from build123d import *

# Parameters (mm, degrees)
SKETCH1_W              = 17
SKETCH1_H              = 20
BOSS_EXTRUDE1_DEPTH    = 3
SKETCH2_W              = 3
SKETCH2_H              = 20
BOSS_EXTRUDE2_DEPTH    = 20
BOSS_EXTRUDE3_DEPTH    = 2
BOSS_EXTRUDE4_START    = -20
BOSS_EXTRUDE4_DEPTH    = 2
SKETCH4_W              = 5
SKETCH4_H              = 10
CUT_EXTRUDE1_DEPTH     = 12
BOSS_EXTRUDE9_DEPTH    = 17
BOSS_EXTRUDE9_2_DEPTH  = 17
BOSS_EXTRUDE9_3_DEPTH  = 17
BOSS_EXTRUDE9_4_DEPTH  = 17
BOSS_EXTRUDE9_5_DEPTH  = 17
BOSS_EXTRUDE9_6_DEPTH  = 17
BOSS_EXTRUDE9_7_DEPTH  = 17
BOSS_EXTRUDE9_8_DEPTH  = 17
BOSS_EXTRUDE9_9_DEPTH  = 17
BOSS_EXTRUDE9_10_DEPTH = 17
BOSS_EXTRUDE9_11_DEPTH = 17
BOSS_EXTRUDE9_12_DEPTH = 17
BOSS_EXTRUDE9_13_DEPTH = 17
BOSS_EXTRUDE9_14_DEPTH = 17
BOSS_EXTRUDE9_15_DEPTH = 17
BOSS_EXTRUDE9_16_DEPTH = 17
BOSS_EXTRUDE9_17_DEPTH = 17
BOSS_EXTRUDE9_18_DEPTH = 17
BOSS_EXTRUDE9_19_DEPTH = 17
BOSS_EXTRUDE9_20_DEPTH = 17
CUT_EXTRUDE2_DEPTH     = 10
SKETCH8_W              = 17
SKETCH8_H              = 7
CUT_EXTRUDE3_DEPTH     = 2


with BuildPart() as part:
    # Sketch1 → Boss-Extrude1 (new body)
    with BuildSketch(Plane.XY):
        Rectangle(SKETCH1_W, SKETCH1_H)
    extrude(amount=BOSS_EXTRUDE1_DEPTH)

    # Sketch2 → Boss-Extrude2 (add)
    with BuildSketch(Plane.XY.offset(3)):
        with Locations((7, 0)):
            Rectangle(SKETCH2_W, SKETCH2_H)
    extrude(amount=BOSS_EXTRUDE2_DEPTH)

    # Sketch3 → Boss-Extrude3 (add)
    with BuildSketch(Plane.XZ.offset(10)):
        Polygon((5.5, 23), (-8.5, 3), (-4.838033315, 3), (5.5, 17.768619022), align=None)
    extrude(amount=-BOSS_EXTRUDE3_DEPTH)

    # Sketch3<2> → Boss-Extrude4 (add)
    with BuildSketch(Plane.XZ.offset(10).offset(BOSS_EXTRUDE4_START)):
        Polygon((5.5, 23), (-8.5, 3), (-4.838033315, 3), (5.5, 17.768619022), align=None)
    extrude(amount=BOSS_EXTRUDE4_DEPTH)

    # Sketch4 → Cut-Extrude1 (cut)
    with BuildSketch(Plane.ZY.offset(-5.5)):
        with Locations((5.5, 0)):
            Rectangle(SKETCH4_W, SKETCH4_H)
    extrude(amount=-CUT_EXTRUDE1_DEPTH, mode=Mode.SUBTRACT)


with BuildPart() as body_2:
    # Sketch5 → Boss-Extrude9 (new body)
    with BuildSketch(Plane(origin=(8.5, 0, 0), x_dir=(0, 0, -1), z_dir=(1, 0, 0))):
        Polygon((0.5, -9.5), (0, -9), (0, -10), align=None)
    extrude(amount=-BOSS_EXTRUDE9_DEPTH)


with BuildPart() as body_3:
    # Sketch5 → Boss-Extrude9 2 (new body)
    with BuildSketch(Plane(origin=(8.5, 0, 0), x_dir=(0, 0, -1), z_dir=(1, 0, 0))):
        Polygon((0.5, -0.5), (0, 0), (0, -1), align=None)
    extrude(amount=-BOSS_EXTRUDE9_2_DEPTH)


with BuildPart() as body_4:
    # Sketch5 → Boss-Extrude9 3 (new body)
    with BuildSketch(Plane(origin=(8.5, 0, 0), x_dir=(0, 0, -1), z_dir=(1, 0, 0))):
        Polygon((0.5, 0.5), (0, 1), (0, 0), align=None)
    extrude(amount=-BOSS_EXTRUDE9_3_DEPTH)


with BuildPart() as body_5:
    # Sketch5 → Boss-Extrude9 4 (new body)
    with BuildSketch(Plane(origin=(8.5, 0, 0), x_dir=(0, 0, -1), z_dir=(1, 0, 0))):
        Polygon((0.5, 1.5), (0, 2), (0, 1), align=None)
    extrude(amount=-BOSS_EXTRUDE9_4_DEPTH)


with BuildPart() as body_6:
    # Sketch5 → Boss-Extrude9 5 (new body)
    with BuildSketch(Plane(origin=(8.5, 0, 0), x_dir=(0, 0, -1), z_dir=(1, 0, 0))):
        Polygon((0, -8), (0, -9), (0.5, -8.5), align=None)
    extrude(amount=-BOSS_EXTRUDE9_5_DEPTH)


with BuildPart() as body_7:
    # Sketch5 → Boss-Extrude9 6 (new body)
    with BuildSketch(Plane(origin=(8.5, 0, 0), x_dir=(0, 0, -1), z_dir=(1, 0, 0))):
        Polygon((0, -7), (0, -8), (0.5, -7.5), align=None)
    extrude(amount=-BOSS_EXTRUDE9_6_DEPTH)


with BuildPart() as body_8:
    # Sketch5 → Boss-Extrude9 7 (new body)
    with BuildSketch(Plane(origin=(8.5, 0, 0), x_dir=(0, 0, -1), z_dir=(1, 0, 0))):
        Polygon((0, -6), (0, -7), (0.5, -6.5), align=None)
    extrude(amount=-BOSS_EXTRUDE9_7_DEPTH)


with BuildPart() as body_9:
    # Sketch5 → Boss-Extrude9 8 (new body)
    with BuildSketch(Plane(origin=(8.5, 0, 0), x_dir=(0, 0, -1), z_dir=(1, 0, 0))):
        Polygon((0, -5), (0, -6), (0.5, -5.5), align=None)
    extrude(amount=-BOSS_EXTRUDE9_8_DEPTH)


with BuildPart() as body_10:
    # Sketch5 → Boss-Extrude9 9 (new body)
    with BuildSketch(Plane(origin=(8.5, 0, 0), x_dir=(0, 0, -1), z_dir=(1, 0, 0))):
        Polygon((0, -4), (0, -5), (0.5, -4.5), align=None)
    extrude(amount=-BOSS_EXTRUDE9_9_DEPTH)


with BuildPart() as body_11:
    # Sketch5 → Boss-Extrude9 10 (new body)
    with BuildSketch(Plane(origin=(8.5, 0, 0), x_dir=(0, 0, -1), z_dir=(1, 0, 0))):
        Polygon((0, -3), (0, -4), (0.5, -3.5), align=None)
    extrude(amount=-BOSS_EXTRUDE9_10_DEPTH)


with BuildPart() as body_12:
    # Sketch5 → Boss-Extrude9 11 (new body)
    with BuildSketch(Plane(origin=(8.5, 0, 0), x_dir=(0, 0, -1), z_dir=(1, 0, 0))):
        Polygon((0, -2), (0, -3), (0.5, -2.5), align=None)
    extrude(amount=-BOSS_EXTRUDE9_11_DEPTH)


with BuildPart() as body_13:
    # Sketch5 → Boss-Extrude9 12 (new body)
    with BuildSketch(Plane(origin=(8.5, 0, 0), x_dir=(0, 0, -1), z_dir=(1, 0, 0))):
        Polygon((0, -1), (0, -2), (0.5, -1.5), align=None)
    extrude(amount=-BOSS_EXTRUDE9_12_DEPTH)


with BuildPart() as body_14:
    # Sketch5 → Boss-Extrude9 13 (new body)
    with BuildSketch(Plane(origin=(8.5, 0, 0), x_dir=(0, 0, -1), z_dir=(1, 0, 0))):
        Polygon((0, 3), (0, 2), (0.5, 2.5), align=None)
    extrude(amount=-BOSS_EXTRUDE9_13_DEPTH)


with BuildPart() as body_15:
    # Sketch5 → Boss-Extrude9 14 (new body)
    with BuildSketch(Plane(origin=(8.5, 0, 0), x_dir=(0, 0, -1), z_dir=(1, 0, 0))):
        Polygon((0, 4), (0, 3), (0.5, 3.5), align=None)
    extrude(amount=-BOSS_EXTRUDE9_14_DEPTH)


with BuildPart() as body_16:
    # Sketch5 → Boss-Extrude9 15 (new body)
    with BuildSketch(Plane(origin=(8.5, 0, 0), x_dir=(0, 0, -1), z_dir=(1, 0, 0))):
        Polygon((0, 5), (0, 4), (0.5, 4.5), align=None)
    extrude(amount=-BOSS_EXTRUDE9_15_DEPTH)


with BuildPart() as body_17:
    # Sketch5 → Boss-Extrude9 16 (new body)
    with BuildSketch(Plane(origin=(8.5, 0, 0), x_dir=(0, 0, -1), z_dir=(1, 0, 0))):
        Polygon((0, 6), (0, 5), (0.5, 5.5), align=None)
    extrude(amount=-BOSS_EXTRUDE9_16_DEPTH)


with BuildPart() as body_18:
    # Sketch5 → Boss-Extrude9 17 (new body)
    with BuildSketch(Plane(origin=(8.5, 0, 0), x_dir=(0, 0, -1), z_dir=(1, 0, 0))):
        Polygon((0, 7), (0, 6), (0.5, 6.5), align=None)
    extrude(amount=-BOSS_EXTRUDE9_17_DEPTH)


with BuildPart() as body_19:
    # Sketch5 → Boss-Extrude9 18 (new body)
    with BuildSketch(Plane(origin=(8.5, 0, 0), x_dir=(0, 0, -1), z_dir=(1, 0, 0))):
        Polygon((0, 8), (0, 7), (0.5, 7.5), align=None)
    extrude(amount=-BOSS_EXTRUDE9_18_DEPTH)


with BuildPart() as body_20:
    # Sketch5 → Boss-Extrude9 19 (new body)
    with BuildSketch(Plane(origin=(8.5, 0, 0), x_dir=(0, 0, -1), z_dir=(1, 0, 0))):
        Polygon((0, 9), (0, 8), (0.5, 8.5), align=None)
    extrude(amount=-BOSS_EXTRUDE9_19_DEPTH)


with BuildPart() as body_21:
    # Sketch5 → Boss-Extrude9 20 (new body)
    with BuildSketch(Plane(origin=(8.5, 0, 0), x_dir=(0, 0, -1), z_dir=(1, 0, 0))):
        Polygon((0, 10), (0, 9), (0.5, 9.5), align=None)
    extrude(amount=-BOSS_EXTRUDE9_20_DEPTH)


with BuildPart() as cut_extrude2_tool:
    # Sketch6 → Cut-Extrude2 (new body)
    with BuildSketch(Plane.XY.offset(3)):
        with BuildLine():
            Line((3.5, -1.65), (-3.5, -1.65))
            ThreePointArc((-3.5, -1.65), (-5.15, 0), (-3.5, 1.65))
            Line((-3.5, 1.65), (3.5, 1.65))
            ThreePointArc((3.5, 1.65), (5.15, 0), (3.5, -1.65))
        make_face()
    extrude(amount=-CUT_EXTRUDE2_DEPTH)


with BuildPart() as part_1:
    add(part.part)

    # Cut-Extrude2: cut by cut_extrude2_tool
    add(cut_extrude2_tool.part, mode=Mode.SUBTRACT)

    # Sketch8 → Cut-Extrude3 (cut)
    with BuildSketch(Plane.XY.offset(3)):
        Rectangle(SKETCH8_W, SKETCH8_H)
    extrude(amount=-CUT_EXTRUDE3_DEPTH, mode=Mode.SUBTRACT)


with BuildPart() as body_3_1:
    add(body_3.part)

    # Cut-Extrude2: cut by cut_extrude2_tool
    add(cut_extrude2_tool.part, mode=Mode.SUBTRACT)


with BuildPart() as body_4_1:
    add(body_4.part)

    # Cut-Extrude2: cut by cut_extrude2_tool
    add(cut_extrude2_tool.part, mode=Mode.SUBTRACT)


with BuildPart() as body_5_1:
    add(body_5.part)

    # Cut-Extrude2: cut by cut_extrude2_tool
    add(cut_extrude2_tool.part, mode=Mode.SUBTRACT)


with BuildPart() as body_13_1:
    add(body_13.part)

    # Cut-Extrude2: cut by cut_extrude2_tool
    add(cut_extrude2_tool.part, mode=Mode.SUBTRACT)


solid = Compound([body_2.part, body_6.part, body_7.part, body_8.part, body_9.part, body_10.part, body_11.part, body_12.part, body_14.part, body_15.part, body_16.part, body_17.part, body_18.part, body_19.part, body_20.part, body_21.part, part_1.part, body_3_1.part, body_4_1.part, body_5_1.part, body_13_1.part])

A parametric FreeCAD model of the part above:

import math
import FreeCAD as App
import Part
import Sketcher
from FreeCAD import Vector
Q = App.Units.Quantity

doc = App.newDocument("Part")
body = doc.addObject("PartDesign::Body", "Body")

# Sketch on XY plane
sketch1 = doc.addObject("Sketcher::SketchObject", "Sketch")
body.addObject(sketch1)
sketch1.AttachmentSupport = (doc.XY_Plane, [""])
sketch1.MapMode = "FlatFace"
sketch1.addGeometry([
    Part.LineSegment(Vector(-8, 10, 0), Vector(-8, -10, 0)),
    Part.LineSegment(Vector(-8, -10, 0), Vector(8, -10, 0)),
    Part.LineSegment(Vector(8, -10, 0), Vector(8, 10, 0)),
    Part.LineSegment(Vector(8, 10, 0), Vector(-8, 10, 0)),
], False)
sketch1.addConstraint([
    Sketcher.Constraint("Coincident", 0, 2, 1, 1),
    Sketcher.Constraint("Coincident", 1, 2, 2, 1),
    Sketcher.Constraint("Coincident", 2, 2, 3, 1),
    Sketcher.Constraint("Coincident", 3, 2, 0, 1),
    Sketcher.Constraint("Vertical", 0),
    Sketcher.Constraint("Horizontal", 1),
    Sketcher.Constraint("Vertical", 2),
    Sketcher.Constraint("Horizontal", 3),
    Sketcher.Constraint("Symmetric", 0, 2, 2, 2, -1, 1),
    Sketcher.Constraint("DistanceX", 1, 1, 1, 2, Q("17 mm")),
    Sketcher.Constraint("DistanceY", 0, 2, 0, 1, Q("20 mm")),
])
pad1 = doc.addObject("PartDesign::Pad", "Pad")
body.addObject(pad1)
pad1.Profile = sketch1
pad1.Length = 3

# Sketch on XY plane
sketch2 = doc.addObject("Sketcher::SketchObject", "Sketch001")
body.addObject(sketch2)
sketch2.AttachmentSupport = (doc.XY_Plane, [""])
sketch2.MapMode = "FlatFace"
sketch2.AttachmentOffset = App.Placement(Vector(0, 0, 3), App.Rotation())
sketch2.addGeometry([
    Part.LineSegment(Vector(5.5, 10, 0), Vector(5.5, -10, 0)),
    Part.LineSegment(Vector(5.5, -10, 0), Vector(8.5, -10, 0)),
    Part.LineSegment(Vector(8.5, -10, 0), Vector(8.5, 10, 0)),
    Part.LineSegment(Vector(8.5, 10, 0), Vector(5.5, 10, 0)),
], False)
sketch2.addConstraint([
    Sketcher.Constraint("Coincident", 0, 2, 1, 1),
    Sketcher.Constraint("Coincident", 1, 2, 2, 1),
    Sketcher.Constraint("Coincident", 2, 2, 3, 1),
    Sketcher.Constraint("Coincident", 3, 2, 0, 1),
    Sketcher.Constraint("Vertical", 0),
    Sketcher.Constraint("Horizontal", 1),
    Sketcher.Constraint("Vertical", 2),
    Sketcher.Constraint("Horizontal", 3),
    Sketcher.Constraint("DistanceX", 1, 1, 1, 2, Q("3 mm")),
    Sketcher.Constraint("DistanceY", 0, 2, 0, 1, Q("20 mm")),
    Sketcher.Constraint("DistanceY", 0, 2, -1, 1, Q("10 mm")),
    Sketcher.Constraint("DistanceX", -1, 1, 0, 2, Q("5.5 mm")),
])
pad2 = doc.addObject("PartDesign::Pad", "Pad001")
body.addObject(pad2)
pad2.Profile = sketch2
pad2.Length = 20

# Sketch on XZ plane
sketch3 = doc.addObject("Sketcher::SketchObject", "Sketch002")
body.addObject(sketch3)
sketch3.AttachmentSupport = (doc.XZ_Plane, [""])
sketch3.MapMode = "FlatFace"
sketch3.AttachmentOffset = App.Placement(Vector(0, 0, 10), App.Rotation())
sketch3.addGeometry([
    Part.LineSegment(Vector(5.5, 23, 0), Vector(-8.5, 3, 0)),
    Part.LineSegment(Vector(-8.5, 3, 0), Vector(-4.8, 3, 0)),
    Part.LineSegment(Vector(-4.8, 3, 0), Vector(5.5, 17.8, 0)),
    Part.LineSegment(Vector(5.5, 17.8, 0), Vector(5.5, 23, 0)),
], False)
sketch3.addConstraint([
    Sketcher.Constraint("Coincident", 0, 2, 1, 1),
    Sketcher.Constraint("Coincident", 1, 2, 2, 1),
    Sketcher.Constraint("Coincident", 2, 2, 3, 1),
    Sketcher.Constraint("Coincident", 3, 2, 0, 1),
    Sketcher.Constraint("Horizontal", 1),
    Sketcher.Constraint("Vertical", 3),
    Sketcher.Constraint("Parallel", 0, 2),
    Sketcher.Constraint("DistanceY", -1, 1, 0, 2, Q("3 mm")),
    Sketcher.Constraint("DistanceY", -1, 1, 3, 2, Q("23 mm")),
    Sketcher.Constraint("DistanceX", 0, 2, 2, 2, Q("14 mm")),
    Sketcher.Constraint("DistanceX", 0, 2, -1, 1, Q("8.5 mm")),
    Sketcher.Constraint("DistanceY", 3, 1, 3, 2, Q("5.231381 mm")),
])
pad3 = doc.addObject("PartDesign::Pad", "Pad002")
body.addObject(pad3)
pad3.Profile = sketch3
pad3.Length = 2
pad3.Reversed = True

# Sketch on XZ plane
sketch4 = doc.addObject("Sketcher::SketchObject", "Sketch003")
body.addObject(sketch4)
sketch4.AttachmentSupport = (doc.XZ_Plane, [""])
sketch4.MapMode = "FlatFace"
sketch4.AttachmentOffset = App.Placement(Vector(0, 0, -10), App.Rotation())
sketch4.addGeometry([
    Part.LineSegment(Vector(5.5, 23, 0), Vector(-8.5, 3, 0)),
    Part.LineSegment(Vector(-8.5, 3, 0), Vector(-4.8, 3, 0)),
    Part.LineSegment(Vector(-4.8, 3, 0), Vector(5.5, 17.8, 0)),
    Part.LineSegment(Vector(5.5, 17.8, 0), Vector(5.5, 23, 0)),
], False)
sketch4.addConstraint([
    Sketcher.Constraint("Coincident", 0, 2, 1, 1),
    Sketcher.Constraint("Coincident", 1, 2, 2, 1),
    Sketcher.Constraint("Coincident", 2, 2, 3, 1),
    Sketcher.Constraint("Coincident", 3, 2, 0, 1),
    Sketcher.Constraint("Horizontal", 1),
    Sketcher.Constraint("Vertical", 3),
    Sketcher.Constraint("Parallel", 0, 2),
    Sketcher.Constraint("DistanceY", -1, 1, 0, 2, Q("3 mm")),
    Sketcher.Constraint("DistanceY", -1, 1, 3, 2, Q("23 mm")),
    Sketcher.Constraint("DistanceX", 0, 2, 2, 2, Q("14 mm")),
    Sketcher.Constraint("DistanceX", 0, 2, -1, 1, Q("8.5 mm")),
    Sketcher.Constraint("DistanceY", 3, 1, 3, 2, Q("5.231381 mm")),
])
pad4 = doc.addObject("PartDesign::Pad", "Pad003")
body.addObject(pad4)
pad4.Profile = sketch4
pad4.Length = 2

# Sketch on YZ plane
sketch5 = doc.addObject("Sketcher::SketchObject", "Sketch004")
body.addObject(sketch5)
sketch5.AttachmentSupport = (doc.YZ_Plane, [""])
sketch5.MapMode = "FlatFace"
sketch5.AttachmentOffset = App.Placement(Vector(0, 0, 5.5), App.Rotation())
sketch5.addGeometry([
    Part.LineSegment(Vector(5, 3, 0), Vector(-5, 3, 0)),
    Part.LineSegment(Vector(-5, 3, 0), Vector(-5, 8, 0)),
    Part.LineSegment(Vector(-5, 8, 0), Vector(5, 8, 0)),
    Part.LineSegment(Vector(5, 8, 0), Vector(5, 3, 0)),
], False)
sketch5.addConstraint([
    Sketcher.Constraint("Coincident", 0, 2, 1, 1),
    Sketcher.Constraint("Coincident", 1, 2, 2, 1),
    Sketcher.Constraint("Coincident", 2, 2, 3, 1),
    Sketcher.Constraint("Coincident", 3, 2, 0, 1),
    Sketcher.Constraint("Horizontal", 0),
    Sketcher.Constraint("Vertical", 1),
    Sketcher.Constraint("Horizontal", 2),
    Sketcher.Constraint("Vertical", 3),
    Sketcher.Constraint("DistanceX", 0, 2, 0, 1, Q("10 mm")),
    Sketcher.Constraint("DistanceY", 1, 1, 1, 2, Q("5 mm")),
    Sketcher.Constraint("DistanceX", 0, 2, -1, 1, Q("5 mm")),
    Sketcher.Constraint("DistanceY", -1, 1, 0, 2, Q("3 mm")),
])
pocket1 = doc.addObject("PartDesign::Pocket", "Pocket")
body.addObject(pocket1)
pocket1.Profile = sketch5
pocket1.Length = 12
pocket1.Reversed = True
body2 = doc.addObject("PartDesign::Body", "Body001")

# Sketch on YZ plane
sketch6 = doc.addObject("Sketcher::SketchObject", "Sketch005")
body2.addObject(sketch6)
sketch6.AttachmentSupport = (doc.getObject("YZ_Plane001"), [""])
sketch6.MapMode = "FlatFace"
sketch6.AttachmentOffset = App.Placement(Vector(0, 0, 8.5), App.Rotation())
sketch6.addGeometry([
    Part.LineSegment(Vector(-9.5, -0.5, 0), Vector(-9, 0, 0)),
    Part.LineSegment(Vector(-9, 0, 0), Vector(-10, 0, 0)),
    Part.LineSegment(Vector(-10, 0, 0), Vector(-9.5, -0.5, 0)),
], False)
sketch6.addConstraint([
    Sketcher.Constraint("Coincident", 0, 2, 1, 1),
    Sketcher.Constraint("Coincident", 1, 2, 2, 1),
    Sketcher.Constraint("Coincident", 2, 2, 0, 1),
    Sketcher.Constraint("Horizontal", 1),
    Sketcher.Constraint("PointOnObject", 0, 2, -1),
    Sketcher.Constraint("Perpendicular", 0, 2),
    Sketcher.Constraint("Equal", 0, 2),
    Sketcher.Constraint("DistanceX", 1, 2, 1, 1, Q("1 mm")),
    Sketcher.Constraint("DistanceX", 0, 2, -1, 1, Q("9 mm")),
])
pad5 = doc.addObject("PartDesign::Pad", "Pad004")
body2.addObject(pad5)
pad5.Profile = sketch6
pad5.Length = 17
pad5.Reversed = True
body3 = doc.addObject("PartDesign::Body", "Body002")

# Sketch on YZ plane
sketch7 = doc.addObject("Sketcher::SketchObject", "Sketch006")
body3.addObject(sketch7)
sketch7.AttachmentSupport = (doc.getObject("YZ_Plane002"), [""])
sketch7.MapMode = "FlatFace"
sketch7.AttachmentOffset = App.Placement(Vector(0, 0, 8.5), App.Rotation())
sketch7.addGeometry([
    Part.LineSegment(Vector(-0.5, -0.5, 0), Vector(0, 0, 0)),
    Part.LineSegment(Vector(0, 0, 0), Vector(-1, 0, 0)),
    Part.LineSegment(Vector(-1, 0, 0), Vector(-0.5, -0.5, 0)),
], False)
sketch7.addConstraint([
    Sketcher.Constraint("Coincident", 0, 2, 1, 1),
    Sketcher.Constraint("Coincident", 1, 2, 2, 1),
    Sketcher.Constraint("Coincident", 2, 2, 0, 1),
    Sketcher.Constraint("Horizontal", 1),
    Sketcher.Constraint("Coincident", 0, 2, -1, 1),
    Sketcher.Constraint("Perpendicular", 0, 2),
    Sketcher.Constraint("Equal", 0, 2),
    Sketcher.Constraint("DistanceX", 1, 2, 1, 1, Q("1 mm")),
])
pad6 = doc.addObject("PartDesign::Pad", "Pad005")
body3.addObject(pad6)
pad6.Profile = sketch7
pad6.Length = 17
pad6.Reversed = True
body4 = doc.addObject("PartDesign::Body", "Body003")

# Sketch on YZ plane
sketch8 = doc.addObject("Sketcher::SketchObject", "Sketch007")
body4.addObject(sketch8)
sketch8.AttachmentSupport = (doc.getObject("YZ_Plane003"), [""])
sketch8.MapMode = "FlatFace"
sketch8.AttachmentOffset = App.Placement(Vector(0, 0, 8.5), App.Rotation())
sketch8.addGeometry([
    Part.LineSegment(Vector(0.5, -0.5, 0), Vector(1, 0, 0)),
    Part.LineSegment(Vector(1, 0, 0), Vector(0, 0, 0)),
    Part.LineSegment(Vector(0, 0, 0), Vector(0.5, -0.5, 0)),
], False)
sketch8.addConstraint([
    Sketcher.Constraint("Coincident", 0, 2, 1, 1),
    Sketcher.Constraint("Coincident", 1, 2, 2, 1),
    Sketcher.Constraint("Coincident", 2, 2, 0, 1),
    Sketcher.Constraint("Horizontal", 1),
    Sketcher.Constraint("Coincident", 1, 2, -1, 1),
    Sketcher.Constraint("Perpendicular", 0, 2),
    Sketcher.Constraint("Equal", 0, 2),
    Sketcher.Constraint("DistanceX", 1, 2, 1, 1, Q("1 mm")),
])
pad7 = doc.addObject("PartDesign::Pad", "Pad006")
body4.addObject(pad7)
pad7.Profile = sketch8
pad7.Length = 17
pad7.Reversed = True
body5 = doc.addObject("PartDesign::Body", "Body004")

# Sketch on YZ plane
sketch9 = doc.addObject("Sketcher::SketchObject", "Sketch008")
body5.addObject(sketch9)
sketch9.AttachmentSupport = (doc.getObject("YZ_Plane004"), [""])
sketch9.MapMode = "FlatFace"
sketch9.AttachmentOffset = App.Placement(Vector(0, 0, 8.5), App.Rotation())
sketch9.addGeometry([
    Part.LineSegment(Vector(1.5, -0.5, 0), Vector(2, 0, 0)),
    Part.LineSegment(Vector(2, 0, 0), Vector(1, 0, 0)),
    Part.LineSegment(Vector(1, 0, 0), Vector(1.5, -0.5, 0)),
], False)
sketch9.addConstraint([
    Sketcher.Constraint("Coincident", 0, 2, 1, 1),
    Sketcher.Constraint("Coincident", 1, 2, 2, 1),
    Sketcher.Constraint("Coincident", 2, 2, 0, 1),
    Sketcher.Constraint("Horizontal", 1),
    Sketcher.Constraint("PointOnObject", 0, 2, -1),
    Sketcher.Constraint("Perpendicular", 0, 2),
    Sketcher.Constraint("Equal", 0, 2),
    Sketcher.Constraint("DistanceX", 1, 2, 1, 1, Q("1 mm")),
    Sketcher.Constraint("DistanceX", -1, 1, 0, 2, Q("2 mm")),
])
pad8 = doc.addObject("PartDesign::Pad", "Pad007")
body5.addObject(pad8)
pad8.Profile = sketch9
pad8.Length = 17
pad8.Reversed = True
body6 = doc.addObject("PartDesign::Body", "Body005")

# Sketch on YZ plane
sketch10 = doc.addObject("Sketcher::SketchObject", "Sketch009")
body6.addObject(sketch10)
sketch10.AttachmentSupport = (doc.getObject("YZ_Plane005"), [""])
sketch10.MapMode = "FlatFace"
sketch10.AttachmentOffset = App.Placement(Vector(0, 0, 8.5), App.Rotation())
sketch10.addGeometry([
    Part.LineSegment(Vector(-8, 0, 0), Vector(-9, 0, 0)),
    Part.LineSegment(Vector(-9, 0, 0), Vector(-8.5, -0.5, 0)),
    Part.LineSegment(Vector(-8.5, -0.5, 0), Vector(-8, 0, 0)),
], False)
sketch10.addConstraint([
    Sketcher.Constraint("Coincident", 0, 2, 1, 1),
    Sketcher.Constraint("Coincident", 1, 2, 2, 1),
    Sketcher.Constraint("Coincident", 2, 2, 0, 1),
    Sketcher.Constraint("Horizontal", 0),
    Sketcher.Constraint("PointOnObject", 0, 2, -1),
    Sketcher.Constraint("Perpendicular", 1, 2),
    Sketcher.Constraint("Equal", 1, 2),
    Sketcher.Constraint("DistanceX", 0, 2, 0, 1, Q("1 mm")),
    Sketcher.Constraint("DistanceX", 0, 2, -1, 1, Q("9 mm")),
])
pad9 = doc.addObject("PartDesign::Pad", "Pad008")
body6.addObject(pad9)
pad9.Profile = sketch10
pad9.Length = 17
pad9.Reversed = True
body7 = doc.addObject("PartDesign::Body", "Body006")

# Sketch on YZ plane
sketch11 = doc.addObject("Sketcher::SketchObject", "Sketch010")
body7.addObject(sketch11)
sketch11.AttachmentSupport = (doc.getObject("YZ_Plane006"), [""])
sketch11.MapMode = "FlatFace"
sketch11.AttachmentOffset = App.Placement(Vector(0, 0, 8.5), App.Rotation())
sketch11.addGeometry([
    Part.LineSegment(Vector(-7, 0, 0), Vector(-8, 0, 0)),
    Part.LineSegment(Vector(-8, 0, 0), Vector(-7.5, -0.5, 0)),
    Part.LineSegment(Vector(-7.5, -0.5, 0), Vector(-7, 0, 0)),
], False)
sketch11.addConstraint([
    Sketcher.Constraint("Coincident", 0, 2, 1, 1),
    Sketcher.Constraint("Coincident", 1, 2, 2, 1),
    Sketcher.Constraint("Coincident", 2, 2, 0, 1),
    Sketcher.Constraint("Horizontal", 0),
    Sketcher.Constraint("PointOnObject", 0, 2, -1),
    Sketcher.Constraint("Perpendicular", 1, 2),
    Sketcher.Constraint("Equal", 1, 2),
    Sketcher.Constraint("DistanceX", 0, 2, 0, 1, Q("1 mm")),
    Sketcher.Constraint("DistanceX", 0, 2, -1, 1, Q("8 mm")),
])
pad10 = doc.addObject("PartDesign::Pad", "Pad009")
body7.addObject(pad10)
pad10.Profile = sketch11
pad10.Length = 17
pad10.Reversed = True
body8 = doc.addObject("PartDesign::Body", "Body007")

# Sketch on YZ plane
sketch12 = doc.addObject("Sketcher::SketchObject", "Sketch011")
body8.addObject(sketch12)
sketch12.AttachmentSupport = (doc.getObject("YZ_Plane007"), [""])
sketch12.MapMode = "FlatFace"
sketch12.AttachmentOffset = App.Placement(Vector(0, 0, 8.5), App.Rotation())
sketch12.addGeometry([
    Part.LineSegment(Vector(-6, 0, 0), Vector(-7, 0, 0)),
    Part.LineSegment(Vector(-7, 0, 0), Vector(-6.5, -0.5, 0)),
    Part.LineSegment(Vector(-6.5, -0.5, 0), Vector(-6, 0, 0)),
], False)
sketch12.addConstraint([
    Sketcher.Constraint("Coincident", 0, 2, 1, 1),
    Sketcher.Constraint("Coincident", 1, 2, 2, 1),
    Sketcher.Constraint("Coincident", 2, 2, 0, 1),
    Sketcher.Constraint("Horizontal", 0),
    Sketcher.Constraint("PointOnObject", 0, 2, -1),
    Sketcher.Constraint("Perpendicular", 1, 2),
    Sketcher.Constraint("Equal", 1, 2),
    Sketcher.Constraint("DistanceX", 0, 2, 0, 1, Q("1 mm")),
    Sketcher.Constraint("DistanceX", 0, 2, -1, 1, Q("7 mm")),
])
pad11 = doc.addObject("PartDesign::Pad", "Pad010")
body8.addObject(pad11)
pad11.Profile = sketch12
pad11.Length = 17
pad11.Reversed = True
body9 = doc.addObject("PartDesign::Body", "Body008")

# Sketch on YZ plane
sketch13 = doc.addObject("Sketcher::SketchObject", "Sketch012")
body9.addObject(sketch13)
sketch13.AttachmentSupport = (doc.getObject("YZ_Plane008"), [""])
sketch13.MapMode = "FlatFace"
sketch13.AttachmentOffset = App.Placement(Vector(0, 0, 8.5), App.Rotation())
sketch13.addGeometry([
    Part.LineSegment(Vector(-5, 0, 0), Vector(-6, 0, 0)),
    Part.LineSegment(Vector(-6, 0, 0), Vector(-5.5, -0.5, 0)),
    Part.LineSegment(Vector(-5.5, -0.5, 0), Vector(-5, 0, 0)),
], False)
sketch13.addConstraint([
    Sketcher.Constraint("Coincident", 0, 2, 1, 1),
    Sketcher.Constraint("Coincident", 1, 2, 2, 1),
    Sketcher.Constraint("Coincident", 2, 2, 0, 1),
    Sketcher.Constraint("Horizontal", 0),
    Sketcher.Constraint("PointOnObject", 0, 2, -1),
    Sketcher.Constraint("Perpendicular", 1, 2),
    Sketcher.Constraint("Equal", 1, 2),
    Sketcher.Constraint("DistanceX", 0, 2, 0, 1, Q("1 mm")),
    Sketcher.Constraint("DistanceX", 0, 2, -1, 1, Q("6 mm")),
])
pad12 = doc.addObject("PartDesign::Pad", "Pad011")
body9.addObject(pad12)
pad12.Profile = sketch13
pad12.Length = 17
pad12.Reversed = True
body10 = doc.addObject("PartDesign::Body", "Body009")

# Sketch on YZ plane
sketch14 = doc.addObject("Sketcher::SketchObject", "Sketch013")
body10.addObject(sketch14)
sketch14.AttachmentSupport = (doc.getObject("YZ_Plane009"), [""])
sketch14.MapMode = "FlatFace"
sketch14.AttachmentOffset = App.Placement(Vector(0, 0, 8.5), App.Rotation())
sketch14.addGeometry([
    Part.LineSegment(Vector(-4, 0, 0), Vector(-5, 0, 0)),
    Part.LineSegment(Vector(-5, 0, 0), Vector(-4.5, -0.5, 0)),
    Part.LineSegment(Vector(-4.5, -0.5, 0), Vector(-4, 0, 0)),
], False)
sketch14.addConstraint([
    Sketcher.Constraint("Coincident", 0, 2, 1, 1),
    Sketcher.Constraint("Coincident", 1, 2, 2, 1),
    Sketcher.Constraint("Coincident", 2, 2, 0, 1),
    Sketcher.Constraint("Horizontal", 0),
    Sketcher.Constraint("PointOnObject", 0, 2, -1),
    Sketcher.Constraint("Perpendicular", 1, 2),
    Sketcher.Constraint("Equal", 1, 2),
    Sketcher.Constraint("DistanceX", 0, 2, 0, 1, Q("1 mm")),
    Sketcher.Constraint("DistanceX", 0, 2, -1, 1, Q("5 mm")),
])
pad13 = doc.addObject("PartDesign::Pad", "Pad012")
body10.addObject(pad13)
pad13.Profile = sketch14
pad13.Length = 17
pad13.Reversed = True
body11 = doc.addObject("PartDesign::Body", "Body010")

# Sketch on YZ plane
sketch15 = doc.addObject("Sketcher::SketchObject", "Sketch014")
body11.addObject(sketch15)
sketch15.AttachmentSupport = (doc.getObject("YZ_Plane010"), [""])
sketch15.MapMode = "FlatFace"
sketch15.AttachmentOffset = App.Placement(Vector(0, 0, 8.5), App.Rotation())
sketch15.addGeometry([
    Part.LineSegment(Vector(-3, 0, 0), Vector(-4, 0, 0)),
    Part.LineSegment(Vector(-4, 0, 0), Vector(-3.5, -0.5, 0)),
    Part.LineSegment(Vector(-3.5, -0.5, 0), Vector(-3, 0, 0)),
], False)
sketch15.addConstraint([
    Sketcher.Constraint("Coincident", 0, 2, 1, 1),
    Sketcher.Constraint("Coincident", 1, 2, 2, 1),
    Sketcher.Constraint("Coincident", 2, 2, 0, 1),
    Sketcher.Constraint("Horizontal", 0),
    Sketcher.Constraint("PointOnObject", 0, 2, -1),
    Sketcher.Constraint("Perpendicular", 1, 2),
    Sketcher.Constraint("Equal", 1, 2),
    Sketcher.Constraint("DistanceX", 0, 2, 0, 1, Q("1 mm")),
    Sketcher.Constraint("DistanceX", 0, 2, -1, 1, Q("4 mm")),
])
pad14 = doc.addObject("PartDesign::Pad", "Pad013")
body11.addObject(pad14)
pad14.Profile = sketch15
pad14.Length = 17
pad14.Reversed = True
body12 = doc.addObject("PartDesign::Body", "Body011")

# Sketch on YZ plane
sketch16 = doc.addObject("Sketcher::SketchObject", "Sketch015")
body12.addObject(sketch16)
sketch16.AttachmentSupport = (doc.getObject("YZ_Plane011"), [""])
sketch16.MapMode = "FlatFace"
sketch16.AttachmentOffset = App.Placement(Vector(0, 0, 8.5), App.Rotation())
sketch16.addGeometry([
    Part.LineSegment(Vector(-2, 0, 0), Vector(-3, 0, 0)),
    Part.LineSegment(Vector(-3, 0, 0), Vector(-2.5, -0.5, 0)),
    Part.LineSegment(Vector(-2.5, -0.5, 0), Vector(-2, 0, 0)),
], False)
sketch16.addConstraint([
    Sketcher.Constraint("Coincident", 0, 2, 1, 1),
    Sketcher.Constraint("Coincident", 1, 2, 2, 1),
    Sketcher.Constraint("Coincident", 2, 2, 0, 1),
    Sketcher.Constraint("Horizontal", 0),
    Sketcher.Constraint("PointOnObject", 0, 2, -1),
    Sketcher.Constraint("Perpendicular", 1, 2),
    Sketcher.Constraint("Equal", 1, 2),
    Sketcher.Constraint("DistanceX", 0, 2, 0, 1, Q("1 mm")),
    Sketcher.Constraint("DistanceX", 0, 2, -1, 1, Q("3 mm")),
])
pad15 = doc.addObject("PartDesign::Pad", "Pad014")
body12.addObject(pad15)
pad15.Profile = sketch16
pad15.Length = 17
pad15.Reversed = True
body13 = doc.addObject("PartDesign::Body", "Body012")

# Sketch on YZ plane
sketch17 = doc.addObject("Sketcher::SketchObject", "Sketch016")
body13.addObject(sketch17)
sketch17.AttachmentSupport = (doc.getObject("YZ_Plane012"), [""])
sketch17.MapMode = "FlatFace"
sketch17.AttachmentOffset = App.Placement(Vector(0, 0, 8.5), App.Rotation())
sketch17.addGeometry([
    Part.LineSegment(Vector(-1, 0, 0), Vector(-2, 0, 0)),
    Part.LineSegment(Vector(-2, 0, 0), Vector(-1.5, -0.5, 0)),
    Part.LineSegment(Vector(-1.5, -0.5, 0), Vector(-1, 0, 0)),
], False)
sketch17.addConstraint([
    Sketcher.Constraint("Coincident", 0, 2, 1, 1),
    Sketcher.Constraint("Coincident", 1, 2, 2, 1),
    Sketcher.Constraint("Coincident", 2, 2, 0, 1),
    Sketcher.Constraint("Horizontal", 0),
    Sketcher.Constraint("PointOnObject", 0, 2, -1),
    Sketcher.Constraint("Perpendicular", 1, 2),
    Sketcher.Constraint("Equal", 1, 2),
    Sketcher.Constraint("DistanceX", 0, 2, 0, 1, Q("1 mm")),
    Sketcher.Constraint("DistanceX", 0, 2, -1, 1, Q("2 mm")),
])
pad16 = doc.addObject("PartDesign::Pad", "Pad015")
body13.addObject(pad16)
pad16.Profile = sketch17
pad16.Length = 17
pad16.Reversed = True
body14 = doc.addObject("PartDesign::Body", "Body013")

# Sketch on YZ plane
sketch18 = doc.addObject("Sketcher::SketchObject", "Sketch017")
body14.addObject(sketch18)
sketch18.AttachmentSupport = (doc.getObject("YZ_Plane013"), [""])
sketch18.MapMode = "FlatFace"
sketch18.AttachmentOffset = App.Placement(Vector(0, 0, 8.5), App.Rotation())
sketch18.addGeometry([
    Part.LineSegment(Vector(3, 0, 0), Vector(2, 0, 0)),
    Part.LineSegment(Vector(2, 0, 0), Vector(2.5, -0.5, 0)),
    Part.LineSegment(Vector(2.5, -0.5, 0), Vector(3, 0, 0)),
], False)
sketch18.addConstraint([
    Sketcher.Constraint("Coincident", 0, 2, 1, 1),
    Sketcher.Constraint("Coincident", 1, 2, 2, 1),
    Sketcher.Constraint("Coincident", 2, 2, 0, 1),
    Sketcher.Constraint("Horizontal", 0),
    Sketcher.Constraint("PointOnObject", 0, 2, -1),
    Sketcher.Constraint("Perpendicular", 1, 2),
    Sketcher.Constraint("Equal", 1, 2),
    Sketcher.Constraint("DistanceX", 0, 2, 0, 1, Q("1 mm")),
    Sketcher.Constraint("DistanceX", -1, 1, 0, 2, Q("2 mm")),
])
pad17 = doc.addObject("PartDesign::Pad", "Pad016")
body14.addObject(pad17)
pad17.Profile = sketch18
pad17.Length = 17
pad17.Reversed = True
body15 = doc.addObject("PartDesign::Body", "Body014")

# Sketch on YZ plane
sketch19 = doc.addObject("Sketcher::SketchObject", "Sketch018")
body15.addObject(sketch19)
sketch19.AttachmentSupport = (doc.getObject("YZ_Plane014"), [""])
sketch19.MapMode = "FlatFace"
sketch19.AttachmentOffset = App.Placement(Vector(0, 0, 8.5), App.Rotation())
sketch19.addGeometry([
    Part.LineSegment(Vector(4, 0, 0), Vector(3, 0, 0)),
    Part.LineSegment(Vector(3, 0, 0), Vector(3.5, -0.5, 0)),
    Part.LineSegment(Vector(3.5, -0.5, 0), Vector(4, 0, 0)),
], False)
sketch19.addConstraint([
    Sketcher.Constraint("Coincident", 0, 2, 1, 1),
    Sketcher.Constraint("Coincident", 1, 2, 2, 1),
    Sketcher.Constraint("Coincident", 2, 2, 0, 1),
    Sketcher.Constraint("Horizontal", 0),
    Sketcher.Constraint("PointOnObject", 0, 2, -1),
    Sketcher.Constraint("Perpendicular", 1, 2),
    Sketcher.Constraint("Equal", 1, 2),
    Sketcher.Constraint("DistanceX", 0, 2, 0, 1, Q("1 mm")),
    Sketcher.Constraint("DistanceX", -1, 1, 0, 2, Q("3 mm")),
])
pad18 = doc.addObject("PartDesign::Pad", "Pad017")
body15.addObject(pad18)
pad18.Profile = sketch19
pad18.Length = 17
pad18.Reversed = True
body16 = doc.addObject("PartDesign::Body", "Body015")

# Sketch on YZ plane
sketch20 = doc.addObject("Sketcher::SketchObject", "Sketch019")
body16.addObject(sketch20)
sketch20.AttachmentSupport = (doc.getObject("YZ_Plane015"), [""])
sketch20.MapMode = "FlatFace"
sketch20.AttachmentOffset = App.Placement(Vector(0, 0, 8.5), App.Rotation())
sketch20.addGeometry([
    Part.LineSegment(Vector(5, 0, 0), Vector(4, 0, 0)),
    Part.LineSegment(Vector(4, 0, 0), Vector(4.5, -0.5, 0)),
    Part.LineSegment(Vector(4.5, -0.5, 0), Vector(5, 0, 0)),
], False)
sketch20.addConstraint([
    Sketcher.Constraint("Coincident", 0, 2, 1, 1),
    Sketcher.Constraint("Coincident", 1, 2, 2, 1),
    Sketcher.Constraint("Coincident", 2, 2, 0, 1),
    Sketcher.Constraint("Horizontal", 0),
    Sketcher.Constraint("PointOnObject", 0, 2, -1),
    Sketcher.Constraint("Perpendicular", 1, 2),
    Sketcher.Constraint("Equal", 1, 2),
    Sketcher.Constraint("DistanceX", 0, 2, 0, 1, Q("1 mm")),
    Sketcher.Constraint("DistanceX", -1, 1, 0, 2, Q("4 mm")),
])
pad19 = doc.addObject("PartDesign::Pad", "Pad018")
body16.addObject(pad19)
pad19.Profile = sketch20
pad19.Length = 17
pad19.Reversed = True
body17 = doc.addObject("PartDesign::Body", "Body016")

# Sketch on YZ plane
sketch21 = doc.addObject("Sketcher::SketchObject", "Sketch020")
body17.addObject(sketch21)
sketch21.AttachmentSupport = (doc.getObject("YZ_Plane016"), [""])
sketch21.MapMode = "FlatFace"
sketch21.AttachmentOffset = App.Placement(Vector(0, 0, 8.5), App.Rotation())
sketch21.addGeometry([
    Part.LineSegment(Vector(6, 0, 0), Vector(5, 0, 0)),
    Part.LineSegment(Vector(5, 0, 0), Vector(5.5, -0.5, 0)),
    Part.LineSegment(Vector(5.5, -0.5, 0), Vector(6, 0, 0)),
], False)
sketch21.addConstraint([
    Sketcher.Constraint("Coincident", 0, 2, 1, 1),
    Sketcher.Constraint("Coincident", 1, 2, 2, 1),
    Sketcher.Constraint("Coincident", 2, 2, 0, 1),
    Sketcher.Constraint("Horizontal", 0),
    Sketcher.Constraint("PointOnObject", 0, 2, -1),
    Sketcher.Constraint("Perpendicular", 1, 2),
    Sketcher.Constraint("Equal", 1, 2),
    Sketcher.Constraint("DistanceX", 0, 2, 0, 1, Q("1 mm")),
    Sketcher.Constraint("DistanceX", -1, 1, 0, 2, Q("5 mm")),
])
pad20 = doc.addObject("PartDesign::Pad", "Pad019")
body17.addObject(pad20)
pad20.Profile = sketch21
pad20.Length = 17
pad20.Reversed = True
body18 = doc.addObject("PartDesign::Body", "Body017")

# Sketch on YZ plane
sketch22 = doc.addObject("Sketcher::SketchObject", "Sketch021")
body18.addObject(sketch22)
sketch22.AttachmentSupport = (doc.getObject("YZ_Plane017"), [""])
sketch22.MapMode = "FlatFace"
sketch22.AttachmentOffset = App.Placement(Vector(0, 0, 8.5), App.Rotation())
sketch22.addGeometry([
    Part.LineSegment(Vector(7, 0, 0), Vector(6, 0, 0)),
    Part.LineSegment(Vector(6, 0, 0), Vector(6.5, -0.5, 0)),
    Part.LineSegment(Vector(6.5, -0.5, 0), Vector(7, 0, 0)),
], False)
sketch22.addConstraint([
    Sketcher.Constraint("Coincident", 0, 2, 1, 1),
    Sketcher.Constraint("Coincident", 1, 2, 2, 1),
    Sketcher.Constraint("Coincident", 2, 2, 0, 1),
    Sketcher.Constraint("Horizontal", 0),
    Sketcher.Constraint("PointOnObject", 0, 2, -1),
    Sketcher.Constraint("Perpendicular", 1, 2),
    Sketcher.Constraint("Equal", 1, 2),
    Sketcher.Constraint("DistanceX", 0, 2, 0, 1, Q("1 mm")),
    Sketcher.Constraint("DistanceX", -1, 1, 0, 2, Q("6 mm")),
])
pad21 = doc.addObject("PartDesign::Pad", "Pad020")
body18.addObject(pad21)
pad21.Profile = sketch22
pad21.Length = 17
pad21.Reversed = True
body19 = doc.addObject("PartDesign::Body", "Body018")

# Sketch on YZ plane
sketch23 = doc.addObject("Sketcher::SketchObject", "Sketch022")
body19.addObject(sketch23)
sketch23.AttachmentSupport = (doc.getObject("YZ_Plane018"), [""])
sketch23.MapMode = "FlatFace"
sketch23.AttachmentOffset = App.Placement(Vector(0, 0, 8.5), App.Rotation())
sketch23.addGeometry([
    Part.LineSegment(Vector(8, 0, 0), Vector(7, 0, 0)),
    Part.LineSegment(Vector(7, 0, 0), Vector(7.5, -0.5, 0)),
    Part.LineSegment(Vector(7.5, -0.5, 0), Vector(8, 0, 0)),
], False)
sketch23.addConstraint([
    Sketcher.Constraint("Coincident", 0, 2, 1, 1),
    Sketcher.Constraint("Coincident", 1, 2, 2, 1),
    Sketcher.Constraint("Coincident", 2, 2, 0, 1),
    Sketcher.Constraint("Horizontal", 0),
    Sketcher.Constraint("PointOnObject", 0, 2, -1),
    Sketcher.Constraint("Perpendicular", 1, 2),
    Sketcher.Constraint("Equal", 1, 2),
    Sketcher.Constraint("DistanceX", 0, 2, 0, 1, Q("1 mm")),
    Sketcher.Constraint("DistanceX", -1, 1, 0, 2, Q("7 mm")),
])
pad22 = doc.addObject("PartDesign::Pad", "Pad021")
body19.addObject(pad22)
pad22.Profile = sketch23
pad22.Length = 17
pad22.Reversed = True
body20 = doc.addObject("PartDesign::Body", "Body019")

# Sketch on YZ plane
sketch24 = doc.addObject("Sketcher::SketchObject", "Sketch023")
body20.addObject(sketch24)
sketch24.AttachmentSupport = (doc.getObject("YZ_Plane019"), [""])
sketch24.MapMode = "FlatFace"
sketch24.AttachmentOffset = App.Placement(Vector(0, 0, 8.5), App.Rotation())
sketch24.addGeometry([
    Part.LineSegment(Vector(9, 0, 0), Vector(8, 0, 0)),
    Part.LineSegment(Vector(8, 0, 0), Vector(8.5, -0.5, 0)),
    Part.LineSegment(Vector(8.5, -0.5, 0), Vector(9, 0, 0)),
], False)
sketch24.addConstraint([
    Sketcher.Constraint("Coincident", 0, 2, 1, 1),
    Sketcher.Constraint("Coincident", 1, 2, 2, 1),
    Sketcher.Constraint("Coincident", 2, 2, 0, 1),
    Sketcher.Constraint("Horizontal", 0),
    Sketcher.Constraint("PointOnObject", 0, 2, -1),
    Sketcher.Constraint("Perpendicular", 1, 2),
    Sketcher.Constraint("Equal", 1, 2),
    Sketcher.Constraint("DistanceX", 0, 2, 0, 1, Q("1 mm")),
    Sketcher.Constraint("DistanceX", -1, 1, 0, 2, Q("8 mm")),
])
pad23 = doc.addObject("PartDesign::Pad", "Pad022")
body20.addObject(pad23)
pad23.Profile = sketch24
pad23.Length = 17
pad23.Reversed = True
body21 = doc.addObject("PartDesign::Body", "Body020")

# Sketch on YZ plane
sketch25 = doc.addObject("Sketcher::SketchObject", "Sketch024")
body21.addObject(sketch25)
sketch25.AttachmentSupport = (doc.getObject("YZ_Plane020"), [""])
sketch25.MapMode = "FlatFace"
sketch25.AttachmentOffset = App.Placement(Vector(0, 0, 8.5), App.Rotation())
sketch25.addGeometry([
    Part.LineSegment(Vector(10, 0, 0), Vector(9, 0, 0)),
    Part.LineSegment(Vector(9, 0, 0), Vector(9.5, -0.5, 0)),
    Part.LineSegment(Vector(9.5, -0.5, 0), Vector(10, 0, 0)),
], False)
sketch25.addConstraint([
    Sketcher.Constraint("Coincident", 0, 2, 1, 1),
    Sketcher.Constraint("Coincident", 1, 2, 2, 1),
    Sketcher.Constraint("Coincident", 2, 2, 0, 1),
    Sketcher.Constraint("Horizontal", 0),
    Sketcher.Constraint("PointOnObject", 0, 2, -1),
    Sketcher.Constraint("Perpendicular", 1, 2),
    Sketcher.Constraint("Equal", 1, 2),
    Sketcher.Constraint("DistanceX", 0, 2, 0, 1, Q("1 mm")),
    Sketcher.Constraint("DistanceX", -1, 1, 0, 2, Q("9 mm")),
])
pad24 = doc.addObject("PartDesign::Pad", "Pad023")
body21.addObject(pad24)
pad24.Profile = sketch25
pad24.Length = 17
pad24.Reversed = True
body22 = doc.addObject("PartDesign::Body", "Body021")

# Sketch on XY plane
sketch26 = doc.addObject("Sketcher::SketchObject", "Sketch025")
body22.addObject(sketch26)
sketch26.AttachmentSupport = (doc.getObject("XY_Plane021"), [""])
sketch26.MapMode = "FlatFace"
sketch26.AttachmentOffset = App.Placement(Vector(0, 0, 3), App.Rotation())
sketch26.addGeometry([
    Part.LineSegment(Vector(-3.5, -1.6, 0), Vector(3.5, -1.6, 0)),
    Part.ArcOfCircle(Part.Circle(Vector(3.5, 0, 0), Vector(0, 0, 1), 1.6), math.radians(-90), math.radians(90)),
    Part.LineSegment(Vector(3.5, 1.6, 0), Vector(-3.5, 1.6, 0)),
    Part.ArcOfCircle(Part.Circle(Vector(-3.5, 0, 0), Vector(0, 0, 1), 1.6), math.radians(90), math.radians(270)),
], False)
sketch26.addConstraint([
    Sketcher.Constraint("Tangent", 0, 2, 1, 1),
    Sketcher.Constraint("Tangent", 1, 2, 2, 1),
    Sketcher.Constraint("Tangent", 2, 2, 3, 1),
    Sketcher.Constraint("Tangent", 3, 2, 0, 1),
    Sketcher.Constraint("Horizontal", 0),
    Sketcher.Constraint("Horizontal", 2),
    Sketcher.Constraint("Symmetric", 1, 3, 3, 3, -1, 1),
    Sketcher.Constraint("DistanceX", 0, 1, 0, 2, Q("7 mm")),
    Sketcher.Constraint("Radius", 1, Q("1.65 mm")),
])
pad25 = doc.addObject("PartDesign::Pad", "Pad024")
body22.addObject(pad25)
pad25.Profile = sketch26
pad25.Length = 10
pad25.Reversed = True
doc.recompute()

body23 = doc.addObject("PartDesign::Body", "Body022")
body23.BaseFeature = body22
boolean = doc.addObject("PartDesign::Boolean", "Boolean")
body.addObject(boolean)
boolean.Type = "Cut"
boolean.addObjects([body23])
doc.recompute()

# Sketch on XY plane
sketch27 = doc.addObject("Sketcher::SketchObject", "Sketch026")
body.addObject(sketch27)
sketch27.AttachmentSupport = (doc.XY_Plane, [""])
sketch27.MapMode = "FlatFace"
sketch27.AttachmentOffset = App.Placement(Vector(0, 0, 3), App.Rotation())
sketch27.addGeometry([
    Part.LineSegment(Vector(-8, 4, 0), Vector(-8, -4, 0)),
    Part.LineSegment(Vector(-8, -4, 0), Vector(8, -4, 0)),
    Part.LineSegment(Vector(8, -4, 0), Vector(8, 4, 0)),
    Part.LineSegment(Vector(8, 4, 0), Vector(-8, 4, 0)),
], False)
sketch27.addConstraint([
    Sketcher.Constraint("Coincident", 0, 2, 1, 1),
    Sketcher.Constraint("Coincident", 1, 2, 2, 1),
    Sketcher.Constraint("Coincident", 2, 2, 3, 1),
    Sketcher.Constraint("Coincident", 3, 2, 0, 1),
    Sketcher.Constraint("Vertical", 0),
    Sketcher.Constraint("Horizontal", 1),
    Sketcher.Constraint("Vertical", 2),
    Sketcher.Constraint("Horizontal", 3),
    Sketcher.Constraint("Symmetric", 0, 2, 2, 2, -1, 1),
    Sketcher.Constraint("DistanceX", 1, 1, 1, 2, Q("17 mm")),
    Sketcher.Constraint("DistanceY", 0, 2, 0, 1, Q("7 mm")),
])
pocket2 = doc.addObject("PartDesign::Pocket", "Pocket001")
body.addObject(pocket2)
pocket2.Profile = sketch27
pocket2.Length = 2
body3.AllowCompound = True
doc.recompute()

body24 = doc.addObject("PartDesign::Body", "Body023")
body24.BaseFeature = body22
boolean2 = doc.addObject("PartDesign::Boolean", "Boolean001")
body3.addObject(boolean2)
boolean2.Type = "Cut"
boolean2.addObjects([body24])
doc.recompute()
body4.AllowCompound = True
doc.recompute()

body25 = doc.addObject("PartDesign::Body", "Body024")
body25.BaseFeature = body22
boolean3 = doc.addObject("PartDesign::Boolean", "Boolean002")
body4.addObject(boolean3)
boolean3.Type = "Cut"
boolean3.addObjects([body25])
doc.recompute()

body26 = doc.addObject("PartDesign::Body", "Body025")
body26.BaseFeature = body22
boolean4 = doc.addObject("PartDesign::Boolean", "Boolean003")
body5.addObject(boolean4)
boolean4.Type = "Cut"
boolean4.addObjects([body26])
doc.recompute()

boolean5 = doc.addObject("PartDesign::Boolean", "Boolean004")
body13.addObject(boolean5)
boolean5.Type = "Cut"
boolean5.addObjects([body22])

doc.recompute()
